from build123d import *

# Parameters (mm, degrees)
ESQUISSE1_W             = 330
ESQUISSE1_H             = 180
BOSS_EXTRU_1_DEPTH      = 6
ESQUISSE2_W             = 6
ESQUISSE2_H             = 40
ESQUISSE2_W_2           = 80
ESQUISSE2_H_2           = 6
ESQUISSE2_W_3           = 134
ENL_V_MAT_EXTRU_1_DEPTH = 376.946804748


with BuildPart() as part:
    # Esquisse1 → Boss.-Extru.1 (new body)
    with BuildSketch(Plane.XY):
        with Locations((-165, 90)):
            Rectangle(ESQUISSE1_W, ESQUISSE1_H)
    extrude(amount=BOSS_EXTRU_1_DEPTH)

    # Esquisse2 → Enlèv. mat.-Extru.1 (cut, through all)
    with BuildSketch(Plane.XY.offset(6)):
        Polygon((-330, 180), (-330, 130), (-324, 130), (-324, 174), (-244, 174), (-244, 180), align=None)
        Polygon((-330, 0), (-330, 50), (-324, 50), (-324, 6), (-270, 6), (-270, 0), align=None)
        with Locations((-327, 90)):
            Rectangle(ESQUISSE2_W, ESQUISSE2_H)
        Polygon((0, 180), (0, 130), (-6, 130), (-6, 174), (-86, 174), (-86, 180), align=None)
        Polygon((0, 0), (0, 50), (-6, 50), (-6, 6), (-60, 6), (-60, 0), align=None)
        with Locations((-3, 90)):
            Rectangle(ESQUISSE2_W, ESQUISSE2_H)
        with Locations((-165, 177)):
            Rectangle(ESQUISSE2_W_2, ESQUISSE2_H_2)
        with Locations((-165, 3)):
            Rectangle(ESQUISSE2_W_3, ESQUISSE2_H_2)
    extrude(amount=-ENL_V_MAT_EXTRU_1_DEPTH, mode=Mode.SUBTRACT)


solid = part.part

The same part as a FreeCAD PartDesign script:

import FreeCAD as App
import Part
import Sketcher

doc = App.newDocument("Part")
body = doc.addObject("PartDesign::Body", "Body")

sketch1 = doc.addObject("Sketcher::SketchObject", "Sketch")
body.addObject(sketch1)
sketch1.AttachmentSupport = (doc.XY_Plane, [""])
sketch1.MapMode = "FlatFace"
sketch1.addGeometry(Part.LineSegment(App.Vector(-330, 180, 0), App.Vector(-330, 0, 0)), False)
sketch1.addGeometry(Part.LineSegment(App.Vector(-330, 0, 0), App.Vector(0, 0, 0)), False)
sketch1.addGeometry(Part.LineSegment(App.Vector(0, 0, 0), App.Vector(0, 180, 0)), False)
sketch1.addGeometry(Part.LineSegment(App.Vector(0, 180, 0), App.Vector(-330, 180, 0)), False)
sketch1.addConstraint(Sketcher.Constraint("Coincident", 0, 2, 1, 1))
sketch1.addConstraint(Sketcher.Constraint("Coincident", 1, 2, 2, 1))
sketch1.addConstraint(Sketcher.Constraint("Coincident", 2, 2, 3, 1))
sketch1.addConstraint(Sketcher.Constraint("Coincident", 3, 2, 0, 1))
sketch1.addConstraint(Sketcher.Constraint("Vertical", 0))
sketch1.addConstraint(Sketcher.Constraint("Horizontal", 1))
sketch1.addConstraint(Sketcher.Constraint("Vertical", 2))
sketch1.addConstraint(Sketcher.Constraint("Horizontal", 3))
sketch1.addConstraint(Sketcher.Constraint("Coincident", 1, 2, -1, 1))
sketch1.addConstraint(Sketcher.Constraint("DistanceX", 1, 1, 1, 2, 330.0))
sketch1.addConstraint(Sketcher.Constraint("DistanceY", 0, 2, 0, 1, 180.0))
pad1 = doc.addObject("PartDesign::Pad", "Pad")
body.addObject(pad1)
pad1.Profile = sketch1
pad1.Length = 6

sketch2 = doc.addObject("Sketcher::SketchObject", "Sketch001")
body.addObject(sketch2)
sketch2.AttachmentSupport = (doc.XY_Plane, [""])
sketch2.MapMode = "FlatFace"
sketch2.AttachmentOffset = App.Placement(App.Vector(0, 0, 6), App.Rotation())
sketch2.addGeometry(Part.LineSegment(App.Vector(-330, 180, 0), App.Vector(-330, 130, 0)), False)
sketch2.addGeometry(Part.LineSegment(App.Vector(-330, 130, 0), App.Vector(-324, 130, 0)), False)
sketch2.addGeometry(Part.LineSegment(App.Vector(-324, 130, 0), App.Vector(-324, 174, 0)), False)
sketch2.addGeometry(Part.LineSegment(App.Vector(-324, 174, 0), App.Vector(-244, 174, 0)), False)
sketch2.addGeometry(Part.LineSegment(App.Vector(-244, 174, 0), App.Vector(-244, 180, 0)), False)
sketch2.addGeometry(Part.LineSegment(App.Vector(-244, 180, 0), App.Vector(-330, 180, 0)), False)
sketch2.addGeometry(Part.LineSegment(App.Vector(-330, 50, 0), App.Vector(-330, 0, 0)), False)
sketch2.addGeometry(Part.LineSegment(App.Vector(-330, 0, 0), App.Vector(-270, 0, 0)), False)
sketch2.addGeometry(Part.LineSegment(App.Vector(-270, 0, 0), App.Vector(-270, 6, 0)), False)
sketch2.addGeometry(Part.LineSegment(App.Vector(-270, 6, 0), App.Vector(-324, 6, 0)), False)
sketch2.addGeometry(Part.LineSegment(App.Vector(-324, 6, 0), App.Vector(-324, 50, 0)), False)
sketch2.addGeometry(Part.LineSegment(App.Vector(-324, 50, 0), App.Vector(-330, 50, 0)), False)
sketch2.addGeometry(Part.LineSegment(App.Vector(-330, 110, 0), App.Vector(-330, 70, 0)), False)
sketch2.addGeometry(Part.LineSegment(App.Vector(-330, 70, 0), App.Vector(-324, 70, 0)), False)
sketch2.addGeometry(Part.LineSegment(App.Vector(-324, 70, 0), App.Vector(-324, 110, 0)), False)
sketch2.addGeometry(Part.LineSegment(App.Vector(-324, 110, 0), App.Vector(-330, 110, 0)), False)
sketch2.addGeometry(Part.LineSegment(App.Vector(0, 130, 0), App.Vector(0, 180, 0)), False)
sketch2.addGeometry(Part.LineSegment(App.Vector(0, 180, 0), App.Vector(-86, 180, 0)), False)
sketch2.addGeometry(Part.LineSegment(App.Vector(-86, 180, 0), App.Vector(-86, 174, 0)), False)
sketch2.addGeometry(Part.LineSegment(App.Vector(-86, 174, 0), App.Vector(-6, 174, 0)), False)
sketch2.addGeometry(Part.LineSegment(App.Vector(-6, 174, 0), App.Vector(-6, 130, 0)), False)
sketch2.addGeometry(Part.LineSegment(App.Vector(-6, 130, 0), App.Vector(0, 130, 0)), False)
sketch2.addGeometry(Part.LineSegment(App.Vector(0, 0, 0), App.Vector(0, 50, 0)), False)
sketch2.addGeometry(Part.LineSegment(App.Vector(0, 50, 0), App.Vector(-6, 50, 0)), False)
sketch2.addGeometry(Part.LineSegment(App.Vector(-6, 50, 0), App.Vector(-6, 6, 0)), False)
sketch2.addGeometry(Part.LineSegment(App.Vector(-6, 6, 0), App.Vector(-60, 6, 0)), False)
sketch2.addGeometry(Part.LineSegment(App.Vector(-60, 6, 0), App.Vector(-60, 0, 0)), False)
sketch2.addGeometry(Part.LineSegment(App.Vector(-60, 0, 0), App.Vector(0, 0, 0)), False)
sketch2.addGeometry(Part.LineSegment(App.Vector(-6, 110, 0), App.Vector(-6, 70, 0)), False)
sketch2.addGeometry(Part.LineSegment(App.Vector(-6, 70, 0), App.Vector(0, 70, 0)), False)
sketch2.addGeometry(Part.LineSegment(App.Vector(0, 70, 0), App.Vector(0, 110, 0)), False)
sketch2.addGeometry(Part.LineSegment(App.Vector(0, 110, 0), App.Vector(-6, 110, 0)), False)
sketch2.addGeometry(Part.LineSegment(App.Vector(-205, 180, 0), App.Vector(-205, 174, 0)), False)
sketch2.addGeometry(Part.LineSegment(App.Vector(-205, 174, 0), App.Vector(-125, 174, 0)), False)
sketch2.addGeometry(Part.LineSegment(App.Vector(-125, 174, 0), App.Vector(-125, 180, 0)), False)
sketch2.addGeometry(Part.LineSegment(App.Vector(-125, 180, 0), App.Vector(-205, 180, 0)), False)
sketch2.addGeometry(Part.LineSegment(App.Vector(-232, 6, 0), App.Vector(-232, 0, 0)), False)
sketch2.addGeometry(Part.LineSegment(App.Vector(-232, 0, 0), App.Vector(-98, 0, 0)), False)
sketch2.addGeometry(Part.LineSegment(App.Vector(-98, 0, 0), App.Vector(-98, 6, 0)), False)
sketch2.addGeometry(Part.LineSegment(App.Vector(-98, 6, 0), App.Vector(-232, 6, 0)), False)
sketch2.addConstraint(Sketcher.Constraint("Coincident", 0, 2, 1, 1))
sketch2.addConstraint(Sketcher.Constraint("Coincident", 1, 2, 2, 1))
sketch2.addConstraint(Sketcher.Constraint("Coincident", 2, 2, 3, 1))
sketch2.addConstraint(Sketcher.Constraint("Coincident", 3, 2, 4, 1))
sketch2.addConstraint(Sketcher.Constraint("Coincident", 4, 2, 5, 1))
sketch2.addConstraint(Sketcher.Constraint("Coincident", 5, 2, 0, 1))
sketch2.addConstraint(Sketcher.Constraint("Coincident", 6, 2, 7, 1))
sketch2.addConstraint(Sketcher.Constraint("Coincident", 7, 2, 8, 1))
sketch2.addConstraint(Sketcher.Constraint("Coincident", 8, 2, 9, 1))
sketch2.addConstraint(Sketcher.Constraint("Coincident", 9, 2, 10, 1))
sketch2.addConstraint(Sketcher.Constraint("Coincident", 10, 2, 11, 1))
sketch2.addConstraint(Sketcher.Constraint("Coincident", 11, 2, 6, 1))
sketch2.addConstraint(Sketcher.Constraint("Coincident", 12, 2, 13, 1))
sketch2.addConstraint(Sketcher.Constraint("Coincident", 13, 2, 14, 1))
sketch2.addConstraint(Sketcher.Constraint("Coincident", 14, 2, 15, 1))
sketch2.addConstraint(Sketcher.Constraint("Coincident", 15, 2, 12, 1))
sketch2.addConstraint(Sketcher.Constraint("Coincident", 16, 2, 17, 1))
sketch2.addConstraint(Sketcher.Constraint("Coincident", 17, 2, 18, 1))
sketch2.addConstraint(Sketcher.Constraint("Coincident", 18, 2, 19, 1))
sketch2.addConstraint(Sketcher.Constraint("Coincident", 19, 2, 20, 1))
sketch2.addConstraint(Sketcher.Constraint("Coincident", 20, 2, 21, 1))
sketch2.addConstraint(Sketcher.Constraint("Coincident", 21, 2, 16, 1))
sketch2.addConstraint(Sketcher.Constraint("Coincident", 22, 2, 23, 1))
sketch2.addConstraint(Sketcher.Constraint("Coincident", 23, 2, 24, 1))
sketch2.addConstraint(Sketcher.Constraint("Coincident", 24, 2, 25, 1))
sketch2.addConstraint(Sketcher.Constraint("Coincident", 25, 2, 26, 1))
sketch2.addConstraint(Sketcher.Constraint("Coincident", 26, 2, 27, 1))
sketch2.addConstraint(Sketcher.Constraint("Coincident", 27, 2, 22, 1))
sketch2.addConstraint(Sketcher.Constraint("Coincident", 28, 2, 29, 1))
sketch2.addConstraint(Sketcher.Constraint("Coincident", 29, 2, 30, 1))
sketch2.addConstraint(Sketcher.Constraint("Coincident", 30, 2, 31, 1))
sketch2.addConstraint(Sketcher.Constraint("Coincident", 31, 2, 28, 1))
sketch2.addConstraint(Sketcher.Constraint("Coincident", 32, 2, 33, 1))
sketch2.addConstraint(Sketcher.Constraint("Coincident", 33, 2, 34, 1))
sketch2.addConstraint(Sketcher.Constraint("Coincident", 34, 2, 35, 1))
sketch2.addConstraint(Sketcher.Constraint("Coincident", 35, 2, 32, 1))
sketch2.addConstraint(Sketcher.Constraint("Coincident", 36, 2, 37, 1))
sketch2.addConstraint(Sketcher.Constraint("Coincident", 37, 2, 38, 1))
sketch2.addConstraint(Sketcher.Constraint("Coincident", 38, 2, 39, 1))
sketch2.addConstraint(Sketcher.Constraint("Coincident", 39, 2, 36, 1))
sketch2.addConstraint(Sketcher.Constraint("Vertical", 0))
sketch2.addConstraint(Sketcher.Constraint("Horizontal", 1))
sketch2.addConstraint(Sketcher.Constraint("Vertical", 2))
sketch2.addConstraint(Sketcher.Constraint("Horizontal", 3))
sketch2.addConstraint(Sketcher.Constraint("Vertical", 4))
sketch2.addConstraint(Sketcher.Constraint("Horizontal", 5))
sketch2.addConstraint(Sketcher.Constraint("Vertical", 6))
sketch2.addConstraint(Sketcher.Constraint("Horizontal", 7))
sketch2.addConstraint(Sketcher.Constraint("Vertical", 8))
sketch2.addConstraint(Sketcher.Constraint("Horizontal", 9))
sketch2.addConstraint(Sketcher.Constraint("Vertical", 10))
sketch2.addConstraint(Sketcher.Constraint("Horizontal", 11))
sketch2.addConstraint(Sketcher.Constraint("Vertical", 12))
sketch2.addConstraint(Sketcher.Constraint("Horizontal", 13))
sketch2.addConstraint(Sketcher.Constraint("Vertical", 14))
sketch2.addConstraint(Sketcher.Constraint("Horizontal", 15))
sketch2.addConstraint(Sketcher.Constraint("Vertical", 16))
sketch2.addConstraint(Sketcher.Constraint("Horizontal", 17))
sketch2.addConstraint(Sketcher.Constraint("Vertical", 18))
sketch2.addConstraint(Sketcher.Constraint("Horizontal", 19))
sketch2.addConstraint(Sketcher.Constraint("Vertical", 20))
sketch2.addConstraint(Sketcher.Constraint("Horizontal", 21))
sketch2.addConstraint(Sketcher.Constraint("Vertical", 22))
sketch2.addConstraint(Sketcher.Constraint("Horizontal", 23))
sketch2.addConstraint(Sketcher.Constraint("Vertical", 24))
sketch2.addConstraint(Sketcher.Constraint("Horizontal", 25))
sketch2.addConstraint(Sketcher.Constraint("Vertical", 26))
sketch2.addConstraint(Sketcher.Constraint("Horizontal", 27))
sketch2.addConstraint(Sketcher.Constraint("Vertical", 28))
sketch2.addConstraint(Sketcher.Constraint("Horizontal", 29))
sketch2.addConstraint(Sketcher.Constraint("Vertical", 30))
sketch2.addConstraint(Sketcher.Constraint("Horizontal", 31))
sketch2.addConstraint(Sketcher.Constraint("Vertical", 32))
sketch2.addConstraint(Sketcher.Constraint("Horizontal", 33))
sketch2.addConstraint(Sketcher.Constraint("Vertical", 34))
sketch2.addConstraint(Sketcher.Constraint("Horizontal", 35))
sketch2.addConstraint(Sketcher.Constraint("Vertical", 36))
sketch2.addConstraint(Sketcher.Constraint("Horizontal", 37))
sketch2.addConstraint(Sketcher.Constraint("Vertical", 38))
sketch2.addConstraint(Sketcher.Constraint("Horizontal", 39))
sketch2.addConstraint(Sketcher.Constraint("Coincident", 27, 2, -1, 1))
sketch2.addConstraint(Sketcher.Constraint("PointOnObject", 6, 2, -1))
sketch2.addConstraint(Sketcher.Constraint("PointOnObject", 16, 2, -2))
sketch2.addConstraint(Sketcher.Constraint("PointOnObject", 29, 2, -2))
sketch2.addConstraint(Sketcher.Constraint("PointOnObject", 36, 2, -1))
sketch2.addConstraint(Sketcher.Constraint("Horizontal", 5, 2, 16, 2))
sketch2.addConstraint(Sketcher.Constraint("Horizontal", 3, 2, 18, 2))
sketch2.addConstraint(Sketcher.Constraint("Horizontal", 1, 2, 20, 2))
sketch2.addConstraint(Sketcher.Constraint("Horizontal", 11, 2, 22, 2))
sketch2.addConstraint(Sketcher.Constraint("Horizontal", 9, 2, 24, 2))
sketch2.addConstraint(Sketcher.Constraint("Horizontal", 13, 2, 28, 2))
sketch2.addConstraint(Sketcher.Constraint("Horizontal", 15, 2, 30, 2))
sketch2.addConstraint(Sketcher.Constraint("Horizontal", 19, 2, 32, 2))
sketch2.addConstraint(Sketcher.Constraint("Horizontal", 17, 2, 34, 2))
sketch2.addConstraint(Sketcher.Constraint("Horizontal", 25, 2, 38, 2))
sketch2.addConstraint(Sketcher.Constraint("Vertical", 5, 2, 6, 2))
sketch2.addConstraint(Sketcher.Constraint("Vertical", 2, 2, 9, 2))
sketch2.addConstraint(Sketcher.Constraint("Vertical", 11, 2, 12, 2))
sketch2.addConstraint(Sketcher.Constraint("Vertical", 10, 2, 13, 2))
sketch2.addConstraint(Sketcher.Constraint("Vertical", 20, 2, 23, 2))
sketch2.addConstraint(Sketcher.Constraint("Vertical", 24, 2, 28, 2))
sketch2.addConstraint(Sketcher.Constraint("Equal", 5, 17))
sketch2.addConstraint(Sketcher.Constraint("Equal", 3, 19))
sketch2.addConstraint(Sketcher.Constraint("Equal", 9, 25))
sketch2.addConstraint(Sketcher.Constraint("Equal", 19, 33))
sketch2.addConstraint(Sketcher.Constraint("Equal", 31, 4))
sketch2.addConstraint(Sketcher.Constraint("Equal", 0, 6))
sketch2.addConstraint(Sketcher.Constraint("Equal", 4, 8))
sketch2.addConstraint(Sketcher.Constraint("DistanceX", 1, 1, 1, 2, 6.0))
sketch2.addConstraint(Sketcher.Constraint("DistanceX", 3, 1, 3, 2, 80.0))
sketch2.addConstraint(Sketcher.Constraint("DistanceX", 7, 1, 7, 2, 60.0))
sketch2.addConstraint(Sketcher.Constraint("DistanceX", 37, 1, 37, 2, 134.0))
sketch2.addConstraint(Sketcher.Constraint("DistanceY", 0, 2, 0, 1, 50.0))
sketch2.addConstraint(Sketcher.Constraint("DistanceY", 12, 2, 12, 1, 40.0))
sketch2.addConstraint(Sketcher.Constraint("DistanceX", 0, 2, -1, 1, 330.0))
sketch2.addConstraint(Sketcher.Constraint("DistanceY", -1, 1, 0, 2, 130.0))
sketch2.addConstraint(Sketcher.Constraint("DistanceY", -1, 1, 12, 2, 70.0))
sketch2.addConstraint(Sketcher.Constraint("DistanceX", 32, 2, -1, 1, 205.0))
sketch2.addConstraint(Sketcher.Constraint("DistanceX", 36, 2, -1, 1, 232.0))
pocket1 = doc.addObject("PartDesign::Pocket", "Pocket")
body.addObject(pocket1)
pocket1.Profile = sketch2
pocket1.Type = "ThroughAll"

doc.recompute()
